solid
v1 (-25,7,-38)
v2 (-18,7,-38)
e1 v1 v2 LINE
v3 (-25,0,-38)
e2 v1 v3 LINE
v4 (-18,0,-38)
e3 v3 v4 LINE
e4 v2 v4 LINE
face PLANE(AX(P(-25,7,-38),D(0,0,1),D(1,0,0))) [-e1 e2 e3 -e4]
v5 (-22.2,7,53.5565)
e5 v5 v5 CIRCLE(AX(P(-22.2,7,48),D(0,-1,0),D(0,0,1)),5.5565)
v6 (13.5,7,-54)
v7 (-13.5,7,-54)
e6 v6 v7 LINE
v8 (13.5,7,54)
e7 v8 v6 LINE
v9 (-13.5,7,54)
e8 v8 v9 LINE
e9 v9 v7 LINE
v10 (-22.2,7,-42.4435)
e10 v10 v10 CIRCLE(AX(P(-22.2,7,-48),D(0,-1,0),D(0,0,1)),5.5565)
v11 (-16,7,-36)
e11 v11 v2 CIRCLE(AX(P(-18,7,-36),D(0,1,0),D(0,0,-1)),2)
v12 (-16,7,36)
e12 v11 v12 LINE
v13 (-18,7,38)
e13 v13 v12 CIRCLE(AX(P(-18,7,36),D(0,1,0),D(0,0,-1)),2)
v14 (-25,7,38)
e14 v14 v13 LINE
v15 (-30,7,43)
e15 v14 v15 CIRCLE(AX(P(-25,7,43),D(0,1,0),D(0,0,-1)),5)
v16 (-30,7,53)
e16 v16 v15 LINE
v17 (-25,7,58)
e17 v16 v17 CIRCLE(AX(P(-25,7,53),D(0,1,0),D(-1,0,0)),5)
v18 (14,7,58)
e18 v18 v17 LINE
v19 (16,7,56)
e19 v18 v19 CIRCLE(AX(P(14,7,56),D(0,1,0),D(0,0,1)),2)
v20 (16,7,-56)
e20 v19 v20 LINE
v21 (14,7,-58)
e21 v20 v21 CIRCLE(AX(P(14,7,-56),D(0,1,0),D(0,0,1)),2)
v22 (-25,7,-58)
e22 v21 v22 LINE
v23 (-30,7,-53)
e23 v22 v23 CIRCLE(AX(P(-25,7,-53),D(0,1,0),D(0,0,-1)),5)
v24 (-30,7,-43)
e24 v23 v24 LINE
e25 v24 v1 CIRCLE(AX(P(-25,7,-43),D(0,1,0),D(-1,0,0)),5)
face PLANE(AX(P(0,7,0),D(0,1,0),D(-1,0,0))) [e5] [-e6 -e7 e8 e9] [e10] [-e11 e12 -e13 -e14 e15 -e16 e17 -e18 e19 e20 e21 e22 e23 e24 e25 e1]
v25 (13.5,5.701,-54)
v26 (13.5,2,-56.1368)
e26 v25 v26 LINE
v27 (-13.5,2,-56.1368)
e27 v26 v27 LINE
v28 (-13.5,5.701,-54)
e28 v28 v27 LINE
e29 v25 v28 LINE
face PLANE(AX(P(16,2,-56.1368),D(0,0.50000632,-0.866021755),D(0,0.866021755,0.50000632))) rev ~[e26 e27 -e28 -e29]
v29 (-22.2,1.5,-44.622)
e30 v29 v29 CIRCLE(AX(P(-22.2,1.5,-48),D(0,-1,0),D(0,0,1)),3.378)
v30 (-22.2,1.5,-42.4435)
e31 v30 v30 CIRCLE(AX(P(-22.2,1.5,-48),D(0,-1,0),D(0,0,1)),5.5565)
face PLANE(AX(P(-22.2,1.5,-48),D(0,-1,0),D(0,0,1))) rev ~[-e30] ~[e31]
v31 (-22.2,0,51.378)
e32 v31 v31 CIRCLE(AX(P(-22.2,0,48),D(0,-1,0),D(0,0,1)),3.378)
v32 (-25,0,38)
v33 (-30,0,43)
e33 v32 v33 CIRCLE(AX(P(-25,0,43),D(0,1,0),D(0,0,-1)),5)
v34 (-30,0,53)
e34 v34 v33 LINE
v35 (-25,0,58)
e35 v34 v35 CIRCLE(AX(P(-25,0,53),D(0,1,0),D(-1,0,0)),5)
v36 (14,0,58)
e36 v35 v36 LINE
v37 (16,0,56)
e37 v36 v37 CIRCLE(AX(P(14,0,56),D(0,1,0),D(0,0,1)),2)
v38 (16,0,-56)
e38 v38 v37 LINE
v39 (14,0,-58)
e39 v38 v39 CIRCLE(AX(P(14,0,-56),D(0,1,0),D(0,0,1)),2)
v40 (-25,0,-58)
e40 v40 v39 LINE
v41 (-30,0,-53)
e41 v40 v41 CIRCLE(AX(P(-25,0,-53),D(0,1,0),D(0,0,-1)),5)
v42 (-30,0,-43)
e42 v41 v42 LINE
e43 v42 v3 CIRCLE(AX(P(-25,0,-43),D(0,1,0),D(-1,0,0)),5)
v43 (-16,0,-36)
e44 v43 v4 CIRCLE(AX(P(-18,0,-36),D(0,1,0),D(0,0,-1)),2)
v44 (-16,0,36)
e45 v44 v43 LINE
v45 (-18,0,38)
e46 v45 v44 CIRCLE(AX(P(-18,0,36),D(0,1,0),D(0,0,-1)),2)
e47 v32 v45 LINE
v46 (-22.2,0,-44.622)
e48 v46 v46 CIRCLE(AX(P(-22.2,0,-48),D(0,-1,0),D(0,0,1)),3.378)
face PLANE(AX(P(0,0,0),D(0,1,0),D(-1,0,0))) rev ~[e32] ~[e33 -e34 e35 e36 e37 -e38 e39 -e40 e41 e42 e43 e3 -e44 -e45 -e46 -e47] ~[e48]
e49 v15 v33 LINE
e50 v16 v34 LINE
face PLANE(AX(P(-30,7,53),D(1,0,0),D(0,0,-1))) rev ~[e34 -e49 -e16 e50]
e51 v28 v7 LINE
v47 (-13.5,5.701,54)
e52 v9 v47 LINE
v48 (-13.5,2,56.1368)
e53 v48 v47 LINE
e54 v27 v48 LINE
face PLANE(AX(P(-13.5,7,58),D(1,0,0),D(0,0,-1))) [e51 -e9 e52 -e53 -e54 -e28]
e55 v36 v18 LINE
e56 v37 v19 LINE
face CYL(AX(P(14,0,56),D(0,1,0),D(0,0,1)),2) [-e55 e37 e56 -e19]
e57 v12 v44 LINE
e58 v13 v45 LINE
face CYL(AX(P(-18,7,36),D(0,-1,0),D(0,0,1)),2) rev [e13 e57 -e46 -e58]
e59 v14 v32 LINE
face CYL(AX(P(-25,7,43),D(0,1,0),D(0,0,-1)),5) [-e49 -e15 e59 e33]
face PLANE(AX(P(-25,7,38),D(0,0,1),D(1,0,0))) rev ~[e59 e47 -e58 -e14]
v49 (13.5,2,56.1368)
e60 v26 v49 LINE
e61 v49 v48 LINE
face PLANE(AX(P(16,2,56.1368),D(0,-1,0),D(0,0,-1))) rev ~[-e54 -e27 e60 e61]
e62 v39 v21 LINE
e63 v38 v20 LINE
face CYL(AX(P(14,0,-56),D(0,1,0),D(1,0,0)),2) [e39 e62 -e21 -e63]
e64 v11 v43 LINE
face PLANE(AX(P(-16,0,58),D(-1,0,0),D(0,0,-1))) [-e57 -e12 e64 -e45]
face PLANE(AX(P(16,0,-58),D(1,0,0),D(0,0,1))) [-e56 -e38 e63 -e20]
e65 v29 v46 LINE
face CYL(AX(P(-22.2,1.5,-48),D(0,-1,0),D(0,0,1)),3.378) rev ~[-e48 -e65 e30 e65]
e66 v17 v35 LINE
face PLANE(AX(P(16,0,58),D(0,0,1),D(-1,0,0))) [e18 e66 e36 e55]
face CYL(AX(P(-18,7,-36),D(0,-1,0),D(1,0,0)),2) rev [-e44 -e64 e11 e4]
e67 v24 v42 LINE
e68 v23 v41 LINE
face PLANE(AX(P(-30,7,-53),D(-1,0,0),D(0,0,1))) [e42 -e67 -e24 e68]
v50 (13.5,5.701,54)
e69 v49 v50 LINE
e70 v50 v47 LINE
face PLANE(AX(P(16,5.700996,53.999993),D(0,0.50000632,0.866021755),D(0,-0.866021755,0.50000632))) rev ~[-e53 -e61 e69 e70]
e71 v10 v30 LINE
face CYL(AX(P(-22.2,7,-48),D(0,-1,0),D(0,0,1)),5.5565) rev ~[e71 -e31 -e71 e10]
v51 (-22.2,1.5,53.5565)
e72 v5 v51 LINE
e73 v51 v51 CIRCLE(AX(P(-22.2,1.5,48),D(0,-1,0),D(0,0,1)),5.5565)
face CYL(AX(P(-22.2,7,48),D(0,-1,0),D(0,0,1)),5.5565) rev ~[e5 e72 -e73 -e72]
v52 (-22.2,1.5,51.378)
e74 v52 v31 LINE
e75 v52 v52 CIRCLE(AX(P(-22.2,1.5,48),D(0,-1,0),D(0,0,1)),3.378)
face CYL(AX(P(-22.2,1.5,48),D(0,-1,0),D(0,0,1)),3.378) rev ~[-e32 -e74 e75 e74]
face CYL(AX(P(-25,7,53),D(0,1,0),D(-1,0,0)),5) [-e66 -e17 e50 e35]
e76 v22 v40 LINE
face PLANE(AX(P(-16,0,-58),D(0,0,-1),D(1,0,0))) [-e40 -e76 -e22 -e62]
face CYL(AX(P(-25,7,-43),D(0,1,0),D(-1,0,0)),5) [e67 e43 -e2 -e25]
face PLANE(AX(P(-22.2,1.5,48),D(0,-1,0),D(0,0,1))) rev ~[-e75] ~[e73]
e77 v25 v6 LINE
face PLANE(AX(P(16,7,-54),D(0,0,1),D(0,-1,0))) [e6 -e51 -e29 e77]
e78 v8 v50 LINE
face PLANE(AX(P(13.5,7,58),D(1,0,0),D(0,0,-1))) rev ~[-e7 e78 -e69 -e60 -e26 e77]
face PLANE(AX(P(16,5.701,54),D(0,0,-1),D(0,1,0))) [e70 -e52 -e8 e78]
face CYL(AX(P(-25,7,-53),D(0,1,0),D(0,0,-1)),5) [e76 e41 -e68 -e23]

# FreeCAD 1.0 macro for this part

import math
import FreeCAD as App
import Part
import Sketcher
Q = App.Units.Quantity


def edges_at(feature, points):
    """Names of the edges that pass closest to the given points."""
    edges = feature.Shape.Edges
    near = lambda p: min(range(len(edges)), key=lambda i: edges[i].distToShape(Part.Vertex(*p))[0])
    return sorted({f"Edge{near(p) + 1}" for p in points})

doc = App.newDocument("Part")
body = doc.addObject("PartDesign::Body", "Body")

sketch1 = body.newObject("Sketcher::SketchObject", "Sketch")
sketch1.AttachmentSupport = (doc.getObject("XZ_Plane"), [""])
sketch1.MapMode = "FlatFace"
sketch1.addGeometry(Part.LineSegment(App.Vector(-16, 58, 0), App.Vector(16, 58, 0)), False)
sketch1.addGeometry(Part.LineSegment(App.Vector(16, 58, 0), App.Vector(16, -58, 0)), False)
sketch1.addGeometry(Part.LineSegment(App.Vector(16, -58, 0), App.Vector(-16, -58, 0)), False)
sketch1.addGeometry(Part.LineSegment(App.Vector(-16, -58, 0), App.Vector(-16, 58, 0)), False)
sketch1.addConstraint(Sketcher.Constraint("Coincident", 0, 2, 1, 1))
sketch1.addConstraint(Sketcher.Constraint("Coincident", 1, 2, 2, 1))
sketch1.addConstraint(Sketcher.Constraint("Coincident", 2, 2, 3, 1))
sketch1.addConstraint(Sketcher.Constraint("Coincident", 3, 2, 0, 1))
sketch1.addConstraint(Sketcher.Constraint("Horizontal", 0))
sketch1.addConstraint(Sketcher.Constraint("Vertical", 1))
sketch1.addConstraint(Sketcher.Constraint("Horizontal", 2))
sketch1.addConstraint(Sketcher.Constraint("Vertical", 3))
sketch1.addConstraint(Sketcher.Constraint("Symmetric", 0, 2, 2, 2, -1, 1))
sketch1.addConstraint(Sketcher.Constraint("DistanceX", 0, 1, 0, 2, 32.0))
sketch1.addConstraint(Sketcher.Constraint("DistanceY", 1, 2, 1, 1, 116.0))
pad1 = body.newObject("PartDesign::Pad", "Pad")
pad1.Profile = sketch1
pad1.Length = 7
pad1.Reversed = True

sketch2 = body.newObject("Sketcher::SketchObject", "Sketch001")
sketch2.AttachmentSupport = (doc.getObject("YZ_Plane"), [""])
sketch2.MapMode = "FlatFace"
sketch2.AttachmentOffset = App.Placement(App.Vector(0, 0, 16), App.Rotation())
sketch2.addGeometry(Part.LineSegment(App.Vector(7, 54, 0), App.Vector(5.7, 54, 0)), False)
sketch2.addGeometry(Part.LineSegment(App.Vector(5.7, 54, 0), App.Vector(2, 56.1, 0)), False)
sketch2.addGeometry(Part.LineSegment(App.Vector(2, 56.1, 0), App.Vector(2, -56.1, 0)), False)
sketch2.addGeometry(Part.LineSegment(App.Vector(2, -56.1, 0), App.Vector(5.7, -54, 0)), False)
sketch2.addGeometry(Part.LineSegment(App.Vector(5.7, -54, 0), App.Vector(7, -54, 0)), False)
sketch2.addGeometry(Part.LineSegment(App.Vector(7, -54, 0), App.Vector(7, 54, 0)), False)
sketch2.addConstraint(Sketcher.Constraint("Coincident", 0, 2, 1, 1))
sketch2.addConstraint(Sketcher.Constraint("Coincident", 1, 2, 2, 1))
sketch2.addConstraint(Sketcher.Constraint("Coincident", 2, 2, 3, 1))
sketch2.addConstraint(Sketcher.Constraint("Coincident", 3, 2, 4, 1))
sketch2.addConstraint(Sketcher.Constraint("Coincident", 4, 2, 5, 1))
sketch2.addConstraint(Sketcher.Constraint("Coincident", 5, 2, 0, 1))
sketch2.addConstraint(Sketcher.Constraint("Horizontal", 0))
sketch2.addConstraint(Sketcher.Constraint("Vertical", 2))
sketch2.addConstraint(Sketcher.Constraint("Horizontal", 4))
sketch2.addConstraint(Sketcher.Constraint("Vertical", 5))
sketch2.addConstraint(Sketcher.Constraint("Symmetric", 0, 2, 3, 2, -1))
sketch2.addConstraint(Sketcher.Constraint("Equal", 1, 3))
sketch2.addConstraint(Sketcher.Constraint("DistanceX", 2, 2, 4, 2, 5.0))
sketch2.addConstraint(Sketcher.Constraint("DistanceY", 5, 1, 5, 2, 108.0))
sketch2.addConstraint(Sketcher.Constraint("Angle", 1, Q("149.9996 deg")))
sketch2.addConstraint(Sketcher.Constraint("DistanceX", -1, 1, 1, 2, 2.0))
sketch2.addConstraint(Sketcher.Constraint("DistanceX", 0, 2, 0, 1, 1.299))
pocket1 = body.newObject("PartDesign::Pocket", "Pocket")
pocket1.Profile = sketch2
pocket1.Type = "ThroughAll"

sketch3 = body.newObject("Sketcher::SketchObject", "Sketch002")
sketch3.AttachmentSupport = (doc.getObject("XZ_Plane"), [""])
sketch3.MapMode = "FlatFace"
sketch3.AttachmentOffset = App.Placement(App.Vector(0, 0, -7), App.Rotation())
sketch3.addGeometry(Part.LineSegment(App.Vector(-13.5, -58, 0), App.Vector(-16, -58, 0)), False)
sketch3.addGeometry(Part.LineSegment(App.Vector(-16, -58, 0), App.Vector(-16, 58, 0)), False)
sketch3.addGeometry(Part.LineSegment(App.Vector(-16, 58, 0), App.Vector(-13.5, 58, 0)), False)
sketch3.addGeometry(Part.LineSegment(App.Vector(-13.5, 58, 0), App.Vector(-13.5, -58, 0)), False)
sketch3.addGeometry(Part.LineSegment(App.Vector(16, -58, 0), App.Vector(13.5, -58, 0)), False)
sketch3.addGeometry(Part.LineSegment(App.Vector(13.5, -58, 0), App.Vector(13.5, 58, 0)), False)
sketch3.addGeometry(Part.LineSegment(App.Vector(13.5, 58, 0), App.Vector(16, 58, 0)), False)
sketch3.addGeometry(Part.LineSegment(App.Vector(16, 58, 0), App.Vector(16, -58, 0)), False)
sketch3.addConstraint(Sketcher.Constraint("Coincident", 0, 2, 1, 1))
sketch3.addConstraint(Sketcher.Constraint("Coincident", 1, 2, 2, 1))
sketch3.addConstraint(Sketcher.Constraint("Coincident", 2, 2, 3, 1))
sketch3.addConstraint(Sketcher.Constraint("Coincident", 3, 2, 0, 1))
sketch3.addConstraint(Sketcher.Constraint("Coincident", 4, 2, 5, 1))
sketch3.addConstraint(Sketcher.Constraint("Coincident", 5, 2, 6, 1))
sketch3.addConstraint(Sketcher.Constraint("Coincident", 6, 2, 7, 1))
sketch3.addConstraint(Sketcher.Constraint("Coincident", 7, 2, 4, 1))
sketch3.addConstraint(Sketcher.Constraint("Horizontal", 0))
sketch3.addConstraint(Sketcher.Constraint("Vertical", 1))
sketch3.addConstraint(Sketcher.Constraint("Horizontal", 2))
sketch3.addConstraint(Sketcher.Constraint("Vertical", 3))
sketch3.addConstraint(Sketcher.Constraint("Horizontal", 4))
sketch3.addConstraint(Sketcher.Constraint("Vertical", 5))
sketch3.addConstraint(Sketcher.Constraint("Horizontal", 6))
sketch3.addConstraint(Sketcher.Constraint("Vertical", 7))
sketch3.addConstraint(Sketcher.Constraint("Symmetric", 2, 2, 4, 2, -1, 1))
sketch3.addConstraint(Sketcher.Constraint("Symmetric", 0, 2, 6, 2, -1, 1))
sketch3.addConstraint(Sketcher.Constraint("Horizontal", 3, 2, 4, 2))
sketch3.addConstraint(Sketcher.Constraint("DistanceX", 0, 2, 0, 1, 2.5))
sketch3.addConstraint(Sketcher.Constraint("DistanceY", 1, 1, 1, 2, 116.0))
sketch3.addConstraint(Sketcher.Constraint("DistanceX", 0, 2, -1, 1, 16.0))
pad2 = body.newObject("PartDesign::Pad", "Pad001")
pad2.Profile = sketch3
pad2.Length = 7

sketch4 = body.newObject("Sketcher::SketchObject", "Sketch003")
sketch4.AttachmentSupport = (doc.getObject("XZ_Plane"), [""])
sketch4.MapMode = "FlatFace"
sketch4.AttachmentOffset = App.Placement(App.Vector(0, 0, -7), App.Rotation())
sketch4.addGeometry(Part.LineSegment(App.Vector(-16, 58, 0), App.Vector(-16, 38, 0)), False)
sketch4.addGeometry(Part.LineSegment(App.Vector(-16, 38, 0), App.Vector(-25, 38, 0)), False)
sketch4.addGeometry(Part.ArcOfCircle(Part.Circle(App.Vector(-25, 43, 0), App.Vector(0, 0, 1), 5), math.radians(180), math.radians(270)), False)
sketch4.addGeometry(Part.LineSegment(App.Vector(-30, 43, 0), App.Vector(-30, 53, 0)), False)
sketch4.addGeometry(Part.ArcOfCircle(Part.Circle(App.Vector(-25, 53, 0), App.Vector(0, 0, 1), 5), math.radians(90), math.radians(180)), False)
sketch4.addGeometry(Part.LineSegment(App.Vector(-25, 58, 0), App.Vector(-16, 58, 0)), False)
sketch4.addGeometry(Part.LineSegment(App.Vector(-16, -38, 0), App.Vector(-16, -58, 0)), False)
sketch4.addGeometry(Part.LineSegment(App.Vector(-16, -58, 0), App.Vector(-25, -58, 0)), False)
sketch4.addGeometry(Part.ArcOfCircle(Part.Circle(App.Vector(-25, -53, 0), App.Vector(0, 0, 1), 5), math.radians(180), math.radians(270)), False)
sketch4.addGeometry(Part.LineSegment(App.Vector(-30, -53, 0), App.Vector(-30, -43, 0)), False)
sketch4.addGeometry(Part.ArcOfCircle(Part.Circle(App.Vector(-25, -43, 0), App.Vector(0, 0, 1), 5), math.radians(90), math.radians(180)), False)
sketch4.addGeometry(Part.LineSegment(App.Vector(-25, -38, 0), App.Vector(-16, -38, 0)), False)
sketch4.addConstraint(Sketcher.Constraint("Coincident", 0, 2, 1, 1))
sketch4.addConstraint(Sketcher.Constraint("Tangent", 1, 2, 2, 2))
sketch4.addConstraint(Sketcher.Constraint("Tangent", 2, 1, 3, 1))
sketch4.addConstraint(Sketcher.Constraint("Tangent", 3, 2, 4, 2))
sketch4.addConstraint(Sketcher.Constraint("Tangent", 4, 1, 5, 1))
sketch4.addConstraint(Sketcher.Constraint("Coincident", 5, 2, 0, 1))
sketch4.addConstraint(Sketcher.Constraint("Coincident", 6, 2, 7, 1))
sketch4.addConstraint(Sketcher.Constraint("Tangent", 7, 2, 8, 2))
sketch4.addConstraint(Sketcher.Constraint("Tangent", 8, 1, 9, 1))
sketch4.addConstraint(Sketcher.Constraint("Tangent", 9, 2, 10, 2))
sketch4.addConstraint(Sketcher.Constraint("Tangent", 10, 1, 11, 1))
sketch4.addConstraint(Sketcher.Constraint("Coincident", 11, 2, 6, 1))
sketch4.addConstraint(Sketcher.Constraint("Vertical", 0))
sketch4.addConstraint(Sketcher.Constraint("Horizontal", 1))
sketch4.addConstraint(Sketcher.Constraint("Vertical", 3))
sketch4.addConstraint(Sketcher.Constraint("Horizontal", 5))
sketch4.addConstraint(Sketcher.Constraint("Vertical", 6))
sketch4.addConstraint(Sketcher.Constraint("Horizontal", 7))
sketch4.addConstraint(Sketcher.Constraint("Vertical", 9))
sketch4.addConstraint(Sketcher.Constraint("Horizontal", 11))
sketch4.addConstraint(Sketcher.Constraint("Equal", 2, 4))
sketch4.addConstraint(Sketcher.Constraint("Equal", 4, 8))
sketch4.addConstraint(Sketcher.Constraint("Equal", 8, 10))
sketch4.addConstraint(Sketcher.Constraint("Symmetric", 4, 3, 8, 3, -1))
sketch4.addConstraint(Sketcher.Constraint("Symmetric", 0, 2, 11, 2, -1))
sketch4.addConstraint(Sketcher.Constraint("Radius", 2, 5.0))
sketch4.addConstraint(Sketcher.Constraint("DistanceY", 0, 2, 0, 1, 20.0))
sketch4.addConstraint(Sketcher.Constraint("DistanceX", 2, 1, 0, 2, 14.0))
sketch4.addConstraint(Sketcher.Constraint("DistanceX", 2, 3, -1, 1, 25.0))
sketch4.addConstraint(Sketcher.Constraint("DistanceY", -1, 1, 2, 3, 43.0))
pad3 = body.newObject("PartDesign::Pad", "Pad002")
pad3.Profile = sketch4
pad3.Length = 7

sketch5 = body.newObject("Sketcher::SketchObject", "Sketch004")
sketch5.AttachmentSupport = (doc.getObject("XZ_Plane"), [""])
sketch5.MapMode = "FlatFace"
sketch5.AttachmentOffset = App.Placement(App.Vector(0, 0, -7), App.Rotation())
sketch5.addGeometry(Part.Circle(App.Vector(-22.2, 48, 0), App.Vector(0, 0, 1), 3.4), False)
sketch5.addGeometry(Part.Circle(App.Vector(-22.2, -48, 0), App.Vector(0, 0, 1), 3.4), False)
sketch5.addConstraint(Sketcher.Constraint("Equal", 0, 1))
sketch5.addConstraint(Sketcher.Constraint("Symmetric", 0, 3, 1, 3, -1))
sketch5.addConstraint(Sketcher.Constraint("Diameter", 0, 6.756))
sketch5.addConstraint(Sketcher.Constraint("DistanceY", -1, 1, 0, 3, 48.0))
sketch5.addConstraint(Sketcher.Constraint("DistanceX", 0, 3, -1, 1, 22.2))
doc.recompute()
hole = body.newObject("PartDesign::Hole", "Hole")
hole.Profile = sketch5
hole.ThreadType = "None"
hole.Diameter = 6.756
hole.DepthType = "Dimension"
hole.Depth = 19.05
hole.DrillPoint = "Angled"
hole.DrillPointAngle = 118
hole.HoleCutType = "Counterbore"
hole.HoleCutDiameter = 11.113
hole.HoleCutDepth = 5.5
hole.Reversed = True
doc.recompute()

fillet = body.newObject("PartDesign::Fillet", "Fillet")
fillet.Base = (hole, edges_at(hole, [
    (16, 3.5, -58),
    (16, 3.5, 58),
    (-16, 3.5, 38),
    (-16, 3.5, -38),
]))
fillet.Radius = 2

doc.recompute()
